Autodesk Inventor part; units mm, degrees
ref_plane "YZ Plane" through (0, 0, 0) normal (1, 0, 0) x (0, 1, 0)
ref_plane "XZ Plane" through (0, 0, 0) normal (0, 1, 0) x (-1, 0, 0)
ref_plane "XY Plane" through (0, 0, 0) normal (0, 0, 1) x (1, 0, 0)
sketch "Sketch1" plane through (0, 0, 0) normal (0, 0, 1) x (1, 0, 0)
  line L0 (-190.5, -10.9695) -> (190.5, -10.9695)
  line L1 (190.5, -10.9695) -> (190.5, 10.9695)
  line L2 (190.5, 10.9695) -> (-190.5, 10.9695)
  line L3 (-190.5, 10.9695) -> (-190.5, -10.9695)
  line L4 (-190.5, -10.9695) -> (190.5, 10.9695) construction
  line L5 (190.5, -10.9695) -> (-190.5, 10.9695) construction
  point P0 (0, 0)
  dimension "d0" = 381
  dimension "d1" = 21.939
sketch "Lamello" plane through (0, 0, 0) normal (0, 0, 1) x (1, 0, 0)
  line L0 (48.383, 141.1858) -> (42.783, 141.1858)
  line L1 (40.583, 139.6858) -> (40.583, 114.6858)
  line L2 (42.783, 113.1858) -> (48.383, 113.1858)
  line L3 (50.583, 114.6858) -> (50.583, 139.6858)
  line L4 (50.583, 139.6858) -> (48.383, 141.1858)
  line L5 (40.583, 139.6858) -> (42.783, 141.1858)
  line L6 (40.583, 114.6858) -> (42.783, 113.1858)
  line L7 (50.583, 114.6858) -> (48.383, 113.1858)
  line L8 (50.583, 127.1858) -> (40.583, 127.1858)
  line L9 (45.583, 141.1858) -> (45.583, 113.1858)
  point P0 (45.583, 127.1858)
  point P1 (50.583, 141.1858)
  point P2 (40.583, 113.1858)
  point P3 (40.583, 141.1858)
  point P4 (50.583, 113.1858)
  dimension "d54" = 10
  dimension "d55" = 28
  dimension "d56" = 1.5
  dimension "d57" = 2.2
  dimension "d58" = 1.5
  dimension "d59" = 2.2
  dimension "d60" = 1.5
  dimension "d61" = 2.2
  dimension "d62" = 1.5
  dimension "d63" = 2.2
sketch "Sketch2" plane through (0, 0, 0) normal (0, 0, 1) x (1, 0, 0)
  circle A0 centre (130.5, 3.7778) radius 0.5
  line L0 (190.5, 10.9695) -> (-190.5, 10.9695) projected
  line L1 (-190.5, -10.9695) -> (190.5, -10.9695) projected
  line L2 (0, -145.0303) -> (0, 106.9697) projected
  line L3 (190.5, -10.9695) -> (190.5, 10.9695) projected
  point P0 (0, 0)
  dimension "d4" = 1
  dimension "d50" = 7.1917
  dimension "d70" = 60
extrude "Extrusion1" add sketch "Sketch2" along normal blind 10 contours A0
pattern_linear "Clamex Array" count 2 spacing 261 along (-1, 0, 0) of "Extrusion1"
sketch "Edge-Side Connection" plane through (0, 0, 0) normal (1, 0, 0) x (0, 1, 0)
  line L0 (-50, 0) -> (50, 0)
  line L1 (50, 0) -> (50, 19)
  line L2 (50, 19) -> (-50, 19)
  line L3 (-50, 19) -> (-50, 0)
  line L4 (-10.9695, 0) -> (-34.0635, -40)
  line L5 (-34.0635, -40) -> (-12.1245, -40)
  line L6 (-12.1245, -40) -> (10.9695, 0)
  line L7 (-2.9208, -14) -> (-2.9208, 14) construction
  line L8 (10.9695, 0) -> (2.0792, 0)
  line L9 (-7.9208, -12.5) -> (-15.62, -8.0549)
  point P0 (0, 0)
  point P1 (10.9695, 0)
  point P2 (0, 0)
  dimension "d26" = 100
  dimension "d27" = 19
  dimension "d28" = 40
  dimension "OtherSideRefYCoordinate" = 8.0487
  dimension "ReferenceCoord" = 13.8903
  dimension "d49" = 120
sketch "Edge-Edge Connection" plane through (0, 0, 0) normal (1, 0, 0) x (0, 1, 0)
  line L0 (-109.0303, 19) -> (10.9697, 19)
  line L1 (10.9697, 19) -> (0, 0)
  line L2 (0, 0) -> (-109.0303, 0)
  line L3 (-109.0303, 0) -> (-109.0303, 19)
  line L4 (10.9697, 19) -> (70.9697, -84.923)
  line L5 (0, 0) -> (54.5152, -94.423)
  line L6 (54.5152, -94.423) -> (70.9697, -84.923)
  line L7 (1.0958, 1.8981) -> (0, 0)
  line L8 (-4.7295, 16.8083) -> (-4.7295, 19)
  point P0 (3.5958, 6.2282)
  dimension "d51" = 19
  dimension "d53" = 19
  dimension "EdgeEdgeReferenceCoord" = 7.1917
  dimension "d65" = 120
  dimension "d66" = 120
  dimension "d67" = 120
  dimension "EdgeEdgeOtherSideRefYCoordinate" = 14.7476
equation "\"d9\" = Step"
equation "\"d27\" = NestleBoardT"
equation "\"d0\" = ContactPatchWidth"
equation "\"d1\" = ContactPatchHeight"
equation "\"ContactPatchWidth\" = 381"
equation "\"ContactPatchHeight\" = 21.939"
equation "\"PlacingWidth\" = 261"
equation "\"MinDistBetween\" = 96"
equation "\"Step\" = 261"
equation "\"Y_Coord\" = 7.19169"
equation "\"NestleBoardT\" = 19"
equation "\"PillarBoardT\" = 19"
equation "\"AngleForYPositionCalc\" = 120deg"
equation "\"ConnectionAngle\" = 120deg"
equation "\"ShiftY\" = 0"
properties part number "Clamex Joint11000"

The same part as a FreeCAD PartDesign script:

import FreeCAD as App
import Part
import Sketcher

V = App.Vector
Q = App.Units.Quantity

doc = App.newDocument("Part")
body = doc.addObject("PartDesign::Body", "Body")
body.AllowCompound = True

sketch1 = body.newObject("Sketcher::SketchObject", "Sketch")
sketch1.AttachmentSupport = (doc.getObject("XY_Plane"), [""])
sketch1.MapMode = "FlatFace"
sketch1.addGeometry(Part.Circle(V(130.5, 3.8, 0), V(0, 0, 1), 0.5), False)
sketch1.addConstraint([
    Sketcher.Constraint("Diameter", 0, Q("1 mm")),
    Sketcher.Constraint("DistanceX", -1, 1, 0, 3, Q("130.5 mm")),
    Sketcher.Constraint("DistanceY", -1, 1, 0, 3, Q("3.7778 mm")),
])
pad1 = body.newObject("PartDesign::Pad", "Pad")
pad1.Profile = sketch1
pad1.Length = 10
doc.recompute()

linearpattern = body.newObject("PartDesign::LinearPattern", "LinearPattern")
linearpattern.Originals = [pad1]
linearpattern.Direction = (doc.getObject("X_Axis"), [""])
linearpattern.Mode = "offset"
linearpattern.Offset = 261
linearpattern.Occurrences = 2
linearpattern.Reversed = True
body.Tip = linearpattern

doc.recompute()
